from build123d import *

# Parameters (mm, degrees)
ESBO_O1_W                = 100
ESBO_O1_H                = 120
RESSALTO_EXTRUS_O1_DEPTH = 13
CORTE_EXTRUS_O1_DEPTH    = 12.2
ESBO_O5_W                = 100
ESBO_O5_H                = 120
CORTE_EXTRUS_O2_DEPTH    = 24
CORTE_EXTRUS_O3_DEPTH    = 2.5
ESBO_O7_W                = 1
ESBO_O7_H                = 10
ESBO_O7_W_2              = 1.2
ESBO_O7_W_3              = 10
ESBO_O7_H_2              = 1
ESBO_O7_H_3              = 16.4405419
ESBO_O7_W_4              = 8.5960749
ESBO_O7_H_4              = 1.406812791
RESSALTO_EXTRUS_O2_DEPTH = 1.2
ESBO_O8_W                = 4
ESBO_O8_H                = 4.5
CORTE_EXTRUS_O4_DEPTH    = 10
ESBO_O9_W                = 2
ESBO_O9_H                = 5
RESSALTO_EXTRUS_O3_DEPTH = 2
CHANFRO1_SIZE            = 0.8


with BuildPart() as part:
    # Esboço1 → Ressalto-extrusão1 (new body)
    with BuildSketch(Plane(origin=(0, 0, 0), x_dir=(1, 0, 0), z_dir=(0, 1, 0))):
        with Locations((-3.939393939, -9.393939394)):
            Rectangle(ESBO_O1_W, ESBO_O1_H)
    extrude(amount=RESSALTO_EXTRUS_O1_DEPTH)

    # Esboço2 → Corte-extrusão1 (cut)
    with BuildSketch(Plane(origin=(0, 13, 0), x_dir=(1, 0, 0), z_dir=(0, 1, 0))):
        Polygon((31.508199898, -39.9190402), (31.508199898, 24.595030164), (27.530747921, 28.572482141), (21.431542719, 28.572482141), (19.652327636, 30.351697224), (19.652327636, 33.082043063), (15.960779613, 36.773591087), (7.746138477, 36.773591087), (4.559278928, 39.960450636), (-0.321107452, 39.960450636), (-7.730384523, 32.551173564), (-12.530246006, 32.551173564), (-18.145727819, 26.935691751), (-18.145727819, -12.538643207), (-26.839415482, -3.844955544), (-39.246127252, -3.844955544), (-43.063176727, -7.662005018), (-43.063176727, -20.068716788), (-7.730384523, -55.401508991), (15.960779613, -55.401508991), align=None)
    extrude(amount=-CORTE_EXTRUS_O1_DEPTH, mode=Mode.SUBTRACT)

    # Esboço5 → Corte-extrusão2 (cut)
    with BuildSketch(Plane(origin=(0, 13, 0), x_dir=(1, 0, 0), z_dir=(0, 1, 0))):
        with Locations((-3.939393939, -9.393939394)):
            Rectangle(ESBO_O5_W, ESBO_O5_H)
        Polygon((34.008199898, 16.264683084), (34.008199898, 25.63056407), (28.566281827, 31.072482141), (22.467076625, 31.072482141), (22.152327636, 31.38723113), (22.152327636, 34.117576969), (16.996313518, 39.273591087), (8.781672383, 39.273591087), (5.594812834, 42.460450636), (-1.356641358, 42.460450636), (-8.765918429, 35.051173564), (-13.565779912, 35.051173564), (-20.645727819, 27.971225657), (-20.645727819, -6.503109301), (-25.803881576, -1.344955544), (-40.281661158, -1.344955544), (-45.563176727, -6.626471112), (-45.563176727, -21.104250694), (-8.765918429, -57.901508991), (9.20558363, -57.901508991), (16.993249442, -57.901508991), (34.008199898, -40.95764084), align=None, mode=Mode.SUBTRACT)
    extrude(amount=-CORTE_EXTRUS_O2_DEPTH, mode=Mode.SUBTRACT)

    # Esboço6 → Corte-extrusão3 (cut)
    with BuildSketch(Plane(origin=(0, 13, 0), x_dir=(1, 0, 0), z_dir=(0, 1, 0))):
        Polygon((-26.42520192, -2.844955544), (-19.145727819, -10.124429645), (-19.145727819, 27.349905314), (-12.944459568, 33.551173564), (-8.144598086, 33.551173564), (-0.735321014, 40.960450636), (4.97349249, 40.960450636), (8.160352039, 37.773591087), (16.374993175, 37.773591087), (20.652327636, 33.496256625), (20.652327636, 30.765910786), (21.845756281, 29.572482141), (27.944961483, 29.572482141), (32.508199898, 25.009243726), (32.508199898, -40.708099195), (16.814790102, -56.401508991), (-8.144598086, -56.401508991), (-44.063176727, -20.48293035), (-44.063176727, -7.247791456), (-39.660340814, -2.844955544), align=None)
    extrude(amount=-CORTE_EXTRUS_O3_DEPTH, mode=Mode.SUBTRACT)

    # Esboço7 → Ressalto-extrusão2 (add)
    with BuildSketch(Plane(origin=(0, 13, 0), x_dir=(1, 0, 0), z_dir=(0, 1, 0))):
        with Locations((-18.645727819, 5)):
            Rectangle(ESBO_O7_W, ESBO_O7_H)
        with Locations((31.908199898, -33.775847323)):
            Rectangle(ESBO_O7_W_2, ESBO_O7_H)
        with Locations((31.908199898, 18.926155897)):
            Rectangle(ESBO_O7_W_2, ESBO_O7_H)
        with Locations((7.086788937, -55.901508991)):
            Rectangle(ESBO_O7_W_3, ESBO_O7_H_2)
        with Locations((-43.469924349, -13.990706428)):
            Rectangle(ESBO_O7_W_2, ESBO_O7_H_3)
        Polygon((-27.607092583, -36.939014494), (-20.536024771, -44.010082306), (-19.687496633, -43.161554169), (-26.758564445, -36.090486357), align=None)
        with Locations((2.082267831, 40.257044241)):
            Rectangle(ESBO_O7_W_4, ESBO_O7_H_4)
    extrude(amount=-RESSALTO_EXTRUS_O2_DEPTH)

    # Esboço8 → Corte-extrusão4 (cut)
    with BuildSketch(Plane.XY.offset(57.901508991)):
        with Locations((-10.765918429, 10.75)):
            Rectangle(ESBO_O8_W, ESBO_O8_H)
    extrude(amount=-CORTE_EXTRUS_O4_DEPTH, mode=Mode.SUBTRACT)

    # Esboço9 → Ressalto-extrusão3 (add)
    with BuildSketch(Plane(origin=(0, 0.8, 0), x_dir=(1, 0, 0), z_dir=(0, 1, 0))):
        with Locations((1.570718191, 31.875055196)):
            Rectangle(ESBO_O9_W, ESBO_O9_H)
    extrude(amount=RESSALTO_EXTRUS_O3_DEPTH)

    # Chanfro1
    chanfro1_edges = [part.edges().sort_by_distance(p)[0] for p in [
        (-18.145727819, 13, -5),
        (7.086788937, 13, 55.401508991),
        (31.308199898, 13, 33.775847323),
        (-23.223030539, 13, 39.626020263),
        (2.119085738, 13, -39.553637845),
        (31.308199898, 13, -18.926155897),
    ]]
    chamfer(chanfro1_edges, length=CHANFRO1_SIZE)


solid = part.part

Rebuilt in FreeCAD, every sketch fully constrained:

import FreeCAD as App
import Part
import Sketcher
from FreeCAD import Vector
Q = App.Units.Quantity


def edges_at(feature, points):
    """Names of the edges that pass closest to the given points."""
    edges = feature.Shape.Edges
    near = lambda p: min(range(len(edges)), key=lambda i: edges[i].distToShape(Part.Vertex(*p))[0])
    return sorted({f"Edge{near(p) + 1}" for p in points})

doc = App.newDocument("Part")
body = doc.addObject("PartDesign::Body", "Body")

# Sketch on XZ plane
sketch1 = doc.addObject("Sketcher::SketchObject", "Sketch")
body.addObject(sketch1)
sketch1.AttachmentSupport = (doc.XZ_Plane, [""])
sketch1.MapMode = "FlatFace"
sketch1.addGeometry(Part.LineSegment(Vector(-54, -51, 0), Vector(-54, 69, 0)), False)
sketch1.addGeometry(Part.LineSegment(Vector(-54, 69, 0), Vector(46, 69, 0)), False)
sketch1.addGeometry(Part.LineSegment(Vector(46, 69, 0), Vector(46, -51, 0)), False)
sketch1.addGeometry(Part.LineSegment(Vector(46, -51, 0), Vector(-54, -51, 0)), False)
sketch1.addConstraint(Sketcher.Constraint("Coincident", 0, 2, 1, 1))
sketch1.addConstraint(Sketcher.Constraint("Coincident", 1, 2, 2, 1))
sketch1.addConstraint(Sketcher.Constraint("Coincident", 2, 2, 3, 1))
sketch1.addConstraint(Sketcher.Constraint("Coincident", 3, 2, 0, 1))
sketch1.addConstraint(Sketcher.Constraint("Vertical", 0))
sketch1.addConstraint(Sketcher.Constraint("Horizontal", 1))
sketch1.addConstraint(Sketcher.Constraint("Vertical", 2))
sketch1.addConstraint(Sketcher.Constraint("Horizontal", 3))
sketch1.addConstraint(Sketcher.Constraint("DistanceX", 1, 1, 1, 2, Q("100 mm")))
sketch1.addConstraint(Sketcher.Constraint("DistanceY", 0, 1, 0, 2, Q("120 mm")))
sketch1.addConstraint(Sketcher.Constraint("DistanceY", -1, 1, 0, 2, Q("69.393939 mm")))
sketch1.addConstraint(Sketcher.Constraint("DistanceX", 0, 2, -1, 1, Q("53.939394 mm")))
pad1 = doc.addObject("PartDesign::Pad", "Pad")
body.addObject(pad1)
pad1.Profile = sketch1
pad1.Length = 13
pad1.Reversed = True

# Sketch on XZ plane
sketch2 = doc.addObject("Sketcher::SketchObject", "Sketch001")
body.addObject(sketch2)
sketch2.AttachmentSupport = (doc.XZ_Plane, [""])
sketch2.MapMode = "FlatFace"
sketch2.AttachmentOffset = App.Placement(Vector(0, 0, -13), App.Rotation())
sketch2.addGeometry(Part.LineSegment(Vector(31.5, 39.9, 0), Vector(31.5, -24.6, 0)), False)
sketch2.addGeometry(Part.LineSegment(Vector(31.5, -24.6, 0), Vector(27.5, -28.6, 0)), False)
sketch2.addGeometry(Part.LineSegment(Vector(27.5, -28.6, 0), Vector(21.4, -28.6, 0)), False)
sketch2.addGeometry(Part.LineSegment(Vector(21.4, -28.6, 0), Vector(19.7, -30.4, 0)), False)
sketch2.addGeometry(Part.LineSegment(Vector(19.7, -30.4, 0), Vector(19.7, -33.1, 0)), False)
sketch2.addGeometry(Part.LineSegment(Vector(19.7, -33.1, 0), Vector(16, -36.8, 0)), False)
sketch2.addGeometry(Part.LineSegment(Vector(16, -36.8, 0), Vector(7.7, -36.8, 0)), False)
sketch2.addGeometry(Part.LineSegment(Vector(7.7, -36.8, 0), Vector(4.6, -40, 0)), False)
sketch2.addGeometry(Part.LineSegment(Vector(4.6, -40, 0), Vector(-0.3, -40, 0)), False)
sketch2.addGeometry(Part.LineSegment(Vector(-0.3, -40, 0), Vector(-7.7, -32.6, 0)), False)
sketch2.addGeometry(Part.LineSegment(Vector(-7.7, -32.6, 0), Vector(-12.5, -32.6, 0)), False)
sketch2.addGeometry(Part.LineSegment(Vector(-12.5, -32.6, 0), Vector(-18.1, -26.9, 0)), False)
sketch2.addGeometry(Part.LineSegment(Vector(-18.1, -26.9, 0), Vector(-18.1, 12.5, 0)), False)
sketch2.addGeometry(Part.LineSegment(Vector(-18.1, 12.5, 0), Vector(-26.8, 3.8, 0)), False)
sketch2.addGeometry(Part.LineSegment(Vector(-26.8, 3.8, 0), Vector(-39.2, 3.8, 0)), False)
sketch2.addGeometry(Part.LineSegment(Vector(-39.2, 3.8, 0), Vector(-43.1, 7.7, 0)), False)
sketch2.addGeometry(Part.LineSegment(Vector(-43.1, 7.7, 0), Vector(-43.1, 20.1, 0)), False)
sketch2.addGeometry(Part.LineSegment(Vector(-43.1, 20.1, 0), Vector(-7.7, 55.4, 0)), False)
sketch2.addGeometry(Part.LineSegment(Vector(-7.7, 55.4, 0), Vector(16, 55.4, 0)), False)
sketch2.addGeometry(Part.LineSegment(Vector(16, 55.4, 0), Vector(31.5, 39.9, 0)), False)
sketch2.addConstraint(Sketcher.Constraint("Coincident", 0, 2, 1, 1))
sketch2.addConstraint(Sketcher.Constraint("Coincident", 1, 2, 2, 1))
sketch2.addConstraint(Sketcher.Constraint("Coincident", 2, 2, 3, 1))
sketch2.addConstraint(Sketcher.Constraint("Coincident", 3, 2, 4, 1))
sketch2.addConstraint(Sketcher.Constraint("Coincident", 4, 2, 5, 1))
sketch2.addConstraint(Sketcher.Constraint("Coincident", 5, 2, 6, 1))
sketch2.addConstraint(Sketcher.Constraint("Coincident", 6, 2, 7, 1))
sketch2.addConstraint(Sketcher.Constraint("Coincident", 7, 2, 8, 1))
sketch2.addConstraint(Sketcher.Constraint("Coincident", 8, 2, 9, 1))
sketch2.addConstraint(Sketcher.Constraint("Coincident", 9, 2, 10, 1))
sketch2.addConstraint(Sketcher.Constraint("Coincident", 10, 2, 11, 1))
sketch2.addConstraint(Sketcher.Constraint("Coincident", 11, 2, 12, 1))
sketch2.addConstraint(Sketcher.Constraint("Coincident", 12, 2, 13, 1))
sketch2.addConstraint(Sketcher.Constraint("Coincident", 13, 2, 14, 1))
sketch2.addConstraint(Sketcher.Constraint("Coincident", 14, 2, 15, 1))
sketch2.addConstraint(Sketcher.Constraint("Coincident", 15, 2, 16, 1))
sketch2.addConstraint(Sketcher.Constraint("Coincident", 16, 2, 17, 1))
sketch2.addConstraint(Sketcher.Constraint("Coincident", 17, 2, 18, 1))
sketch2.addConstraint(Sketcher.Constraint("Coincident", 18, 2, 19, 1))
sketch2.addConstraint(Sketcher.Constraint("Coincident", 19, 2, 0, 1))
sketch2.addConstraint(Sketcher.Constraint("Vertical", 0))
sketch2.addConstraint(Sketcher.Constraint("Horizontal", 2))
sketch2.addConstraint(Sketcher.Constraint("Vertical", 4))
sketch2.addConstraint(Sketcher.Constraint("Horizontal", 6))
sketch2.addConstraint(Sketcher.Constraint("Horizontal", 8))
sketch2.addConstraint(Sketcher.Constraint("Horizontal", 10))
sketch2.addConstraint(Sketcher.Constraint("Vertical", 12))
sketch2.addConstraint(Sketcher.Constraint("Horizontal", 14))
sketch2.addConstraint(Sketcher.Constraint("Vertical", 16))
sketch2.addConstraint(Sketcher.Constraint("Horizontal", 18))
sketch2.addConstraint(Sketcher.Constraint("Parallel", 1, 3))
sketch2.addConstraint(Sketcher.Constraint("Parallel", 3, 5))
sketch2.addConstraint(Sketcher.Constraint("Parallel", 5, 7))
sketch2.addConstraint(Sketcher.Constraint("Perpendicular", 7, 9))
sketch2.addConstraint(Sketcher.Constraint("Parallel", 9, 11))
sketch2.addConstraint(Sketcher.Constraint("Perpendicular", 11, 13))
sketch2.addConstraint(Sketcher.Constraint("Perpendicular", 13, 15))
sketch2.addConstraint(Sketcher.Constraint("Perpendicular", 15, 17))
sketch2.addConstraint(Sketcher.Constraint("Vertical", 9, 2, 17, 2))
sketch2.addConstraint(Sketcher.Constraint("Vertical", 5, 2, 18, 2))
sketch2.addConstraint(Sketcher.Constraint("Equal", 14, 16))
sketch2.addConstraint(Sketcher.Constraint("Angle", 1, Q("-135 deg")))
sketch2.addConstraint(Sketcher.Constraint("Distance", 7, Q("4.5069 mm")))
sketch2.addConstraint(Sketcher.Constraint("Distance", 9, Q("10.4783 mm")))
sketch2.addConstraint(Sketcher.Constraint("DistanceX", 6, 2, 6, 1, Q("8.214641 mm")))
sketch2.addConstraint(Sketcher.Constraint("DistanceX", 10, 2, 10, 1, Q("4.799861 mm")))
sketch2.addConstraint(Sketcher.Constraint("DistanceX", 14, 2, 14, 1, Q("12.406712 mm")))
sketch2.addConstraint(Sketcher.Constraint("DistanceY", 0, 2, 0, 1, Q("64.51407 mm")))
sketch2.addConstraint(Sketcher.Constraint("DistanceX", -1, 1, 0, 2, Q("31.5082 mm")))
sketch2.addConstraint(Sketcher.Constraint("DistanceY", 6, 2, 11, 2, Q("9.837899 mm")))
sketch2.addConstraint(Sketcher.Constraint("DistanceX", 14, 2, 12, 2, Q("21.100399 mm")))
sketch2.addConstraint(Sketcher.Constraint("Distance", 3, Q("2.51619 mm")))
sketch2.addConstraint(Sketcher.Constraint("DistanceX", 2, 2, 2, 1, Q("6.099205 mm")))
sketch2.addConstraint(Sketcher.Constraint("DistanceX", 8, 2, 8, 1, Q("4.880386 mm")))
sketch2.addConstraint(Sketcher.Constraint("DistanceY", 4, 2, 4, 1, Q("2.730346 mm")))
sketch2.addConstraint(Sketcher.Constraint("DistanceY", 12, 1, 12, 2, Q("39.474335 mm")))
sketch2.addConstraint(Sketcher.Constraint("DistanceY", 0, 2, -1, 1, Q("24.59503 mm")))
sketch2.addConstraint(Sketcher.Constraint("DistanceX", -1, 1, 5, 2, Q("15.96078 mm")))
sketch2.addConstraint(Sketcher.Constraint("DistanceY", -1, 1, 17, 2, Q("55.401509 mm")))
sketch2.addConstraint(Sketcher.Constraint("DistanceX", 1, 2, 0, 2, Q("3.977452 mm")))
pocket1 = doc.addObject("PartDesign::Pocket", "Pocket")
body.addObject(pocket1)
pocket1.Profile = sketch2
pocket1.Length = 12.2
pocket1.Reversed = True

# Sketch on XZ plane
sketch3 = doc.addObject("Sketcher::SketchObject", "Sketch002")
body.addObject(sketch3)
sketch3.AttachmentSupport = (doc.XZ_Plane, [""])
sketch3.MapMode = "FlatFace"
sketch3.AttachmentOffset = App.Placement(Vector(0, 0, -13), App.Rotation())
sketch3.addGeometry(Part.LineSegment(Vector(-53.94, -50.61, 0), Vector(-53.94, 69.39, 0)), False)
sketch3.addGeometry(Part.LineSegment(Vector(-53.94, 69.39, 0), Vector(46.06, 69.39, 0)), False)
sketch3.addGeometry(Part.LineSegment(Vector(46.06, 69.39, 0), Vector(46.06, -50.61, 0)), False)
sketch3.addGeometry(Part.LineSegment(Vector(46.06, -50.61, 0), Vector(-53.94, -50.61, 0)), False)
sketch3.addGeometry(Part.LineSegment(Vector(34.01, -25.63, 0), Vector(34.01, 40.96, 0)), False)
sketch3.addGeometry(Part.LineSegment(Vector(34.01, 40.96, 0), Vector(16.99, 57.9, 0)), False)
sketch3.addGeometry(Part.LineSegment(Vector(16.99, 57.9, 0), Vector(-8.77, 57.9, 0)), False)
sketch3.addGeometry(Part.LineSegment(Vector(-8.77, 57.9, 0), Vector(-45.56, 21.1, 0)), False)
sketch3.addGeometry(Part.LineSegment(Vector(-45.56, 21.1, 0), Vector(-45.56, 6.63, 0)), False)
sketch3.addGeometry(Part.LineSegment(Vector(-45.56, 6.63, 0), Vector(-40.28, 1.34, 0)), False)
sketch3.addGeometry(Part.LineSegment(Vector(-40.28, 1.34, 0), Vector(-25.8, 1.34, 0)), False)
sketch3.addGeometry(Part.LineSegment(Vector(-25.8, 1.34, 0), Vector(-20.65, 6.5, 0)), False)
sketch3.addGeometry(Part.LineSegment(Vector(-20.65, 6.5, 0), Vector(-20.65, -27.97, 0)), False)
sketch3.addGeometry(Part.LineSegment(Vector(-20.65, -27.97, 0), Vector(-13.57, -35.05, 0)), False)
sketch3.addGeometry(Part.LineSegment(Vector(-13.57, -35.05, 0), Vector(-8.77, -35.05, 0)), False)
sketch3.addGeometry(Part.LineSegment(Vector(-8.77, -35.05, 0), Vector(-1.36, -42.46, 0)), False)
sketch3.addGeometry(Part.LineSegment(Vector(-1.36, -42.46, 0), Vector(5.59, -42.46, 0)), False)
sketch3.addGeometry(Part.LineSegment(Vector(5.59, -42.46, 0), Vector(8.78, -39.27, 0)), False)
sketch3.addGeometry(Part.LineSegment(Vector(8.78, -39.27, 0), Vector(17, -39.27, 0)), False)
sketch3.addGeometry(Part.LineSegment(Vector(17, -39.27, 0), Vector(22.15, -34.12, 0)), False)
sketch3.addGeometry(Part.LineSegment(Vector(22.15, -34.12, 0), Vector(22.15, -31.39, 0)), False)
sketch3.addGeometry(Part.LineSegment(Vector(22.15, -31.39, 0), Vector(22.47, -31.07, 0)), False)
sketch3.addGeometry(Part.LineSegment(Vector(22.47, -31.07, 0), Vector(28.57, -31.07, 0)), False)
sketch3.addGeometry(Part.LineSegment(Vector(28.57, -31.07, 0), Vector(34.01, -25.63, 0)), False)
sketch3.addConstraint(Sketcher.Constraint("Coincident", 0, 2, 1, 1))
sketch3.addConstraint(Sketcher.Constraint("Coincident", 1, 2, 2, 1))
sketch3.addConstraint(Sketcher.Constraint("Coincident", 2, 2, 3, 1))
sketch3.addConstraint(Sketcher.Constraint("Coincident", 3, 2, 0, 1))
sketch3.addConstraint(Sketcher.Constraint("Coincident", 4, 2, 5, 1))
sketch3.addConstraint(Sketcher.Constraint("Coincident", 5, 2, 6, 1))
sketch3.addConstraint(Sketcher.Constraint("Coincident", 6, 2, 7, 1))
sketch3.addConstraint(Sketcher.Constraint("Coincident", 7, 2, 8, 1))
sketch3.addConstraint(Sketcher.Constraint("Coincident", 8, 2, 9, 1))
sketch3.addConstraint(Sketcher.Constraint("Coincident", 9, 2, 10, 1))
sketch3.addConstraint(Sketcher.Constraint("Coincident", 10, 2, 11, 1))
sketch3.addConstraint(Sketcher.Constraint("Coincident", 11, 2, 12, 1))
sketch3.addConstraint(Sketcher.Constraint("Coincident", 12, 2, 13, 1))
sketch3.addConstraint(Sketcher.Constraint("Coincident", 13, 2, 14, 1))
sketch3.addConstraint(Sketcher.Constraint("Coincident", 14, 2, 15, 1))
sketch3.addConstraint(Sketcher.Constraint("Coincident", 15, 2, 16, 1))
sketch3.addConstraint(Sketcher.Constraint("Coincident", 16, 2, 17, 1))
sketch3.addConstraint(Sketcher.Constraint("Coincident", 17, 2, 18, 1))
sketch3.addConstraint(Sketcher.Constraint("Coincident", 18, 2, 19, 1))
sketch3.addConstraint(Sketcher.Constraint("Coincident", 19, 2, 20, 1))
sketch3.addConstraint(Sketcher.Constraint("Coincident", 20, 2, 21, 1))
sketch3.addConstraint(Sketcher.Constraint("Coincident", 21, 2, 22, 1))
sketch3.addConstraint(Sketcher.Constraint("Coincident", 22, 2, 23, 1))
sketch3.addConstraint(Sketcher.Constraint("Coincident", 23, 2, 4, 1))
sketch3.addConstraint(Sketcher.Constraint("Vertical", 0))
sketch3.addConstraint(Sketcher.Constraint("Horizontal", 1))
sketch3.addConstraint(Sketcher.Constraint("Vertical", 2))
sketch3.addConstraint(Sketcher.Constraint("Horizontal", 3))
sketch3.addConstraint(Sketcher.Constraint("Vertical", 4))
sketch3.addConstraint(Sketcher.Constraint("Horizontal", 6))
sketch3.addConstraint(Sketcher.Constraint("Vertical", 8))
sketch3.addConstraint(Sketcher.Constraint("Horizontal", 10))
sketch3.addConstraint(Sketcher.Constraint("Vertical", 12))
sketch3.addConstraint(Sketcher.Constraint("Horizontal", 14))
sketch3.addConstraint(Sketcher.Constraint("Horizontal", 16))
sketch3.addConstraint(Sketcher.Constraint("Horizontal", 18))
sketch3.addConstraint(Sketcher.Constraint("Vertical", 20))
sketch3.addConstraint(Sketcher.Constraint("Horizontal", 22))
sketch3.addConstraint(Sketcher.Constraint("Perpendicular", 7, 9))
sketch3.addConstraint(Sketcher.Constraint("Perpendicular", 9, 11))
sketch3.addConstraint(Sketcher.Constraint("Perpendicular", 11, 13))
sketch3.addConstraint(Sketcher.Constraint("Parallel", 13, 15))
sketch3.addConstraint(Sketcher.Constraint("Perpendicular", 15, 17))
sketch3.addConstraint(Sketcher.Constraint("Parallel", 17, 19))
sketch3.addConstraint(Sketcher.Constraint("Parallel", 19, 21))
sketch3.addConstraint(Sketcher.Constraint("Parallel", 21, 23))
sketch3.addConstraint(Sketcher.Constraint("Vertical", 6, 2, 14, 2))
sketch3.addConstraint(Sketcher.Constraint("Equal", 10, 8))
sketch3.addConstraint(Sketcher.Constraint("DistanceX", 1, 1, 1, 2, Q("100 mm")))
sketch3.addConstraint(Sketcher.Constraint("DistanceY", 0, 1, 0, 2, Q("120 mm")))
sketch3.addConstraint(Sketcher.Constraint("Angle", 7, Q("-135 deg")))
sketch3.addConstraint(Sketcher.Constraint("Distance", 15, Q("10.4783 mm")))
sketch3.addConstraint(Sketcher.Constraint("Distance", 17, Q("4.5069 mm")))
sketch3.addConstraint(Sketcher.Constraint("DistanceX", 10, 1, 10, 2, Q("14.47778 mm")))
sketch3.addConstraint(Sketcher.Constraint("DistanceX", 14, 1, 14, 2, Q("4.799861 mm")))
sketch3.addConstraint(Sketcher.Constraint("DistanceX", 18, 1, 18, 2, Q("8.214641 mm")))
sketch3.addConstraint(Sketcher.Constraint("DistanceX", -1, 1, 4, 2, Q("34.0082 mm")))
sketch3.addConstraint(Sketcher.Constraint("DistanceY", 4, 2, 1, 2, Q("28.436299 mm")))
sketch3.addConstraint(Sketcher.Constraint("DistanceY", 11, 2, 6, 2, Q("51.3984 mm")))
sketch3.addConstraint(Sketcher.Constraint("DistanceX", 10, 2, 13, 2, Q("12.238102 mm")))
sketch3.addConstraint(Sketcher.Constraint("DistanceX", 12, 2, 17, 2, Q("29.4274 mm")))
sketch3.addConstraint(Sketcher.Constraint("Distance", 7, Q("52.039182 mm")))
sketch3.addConstraint(Sketcher.Constraint("DistanceX", 6, 2, 6, 1, Q("25.759168 mm")))
sketch3.addConstraint(Sketcher.Constraint("DistanceX", 22, 1, 22, 2, Q("6.099205 mm")))
sketch3.addConstraint(Sketcher.Constraint("DistanceY", 4, 1, 4, 2, Q("66.588205 mm")))
sketch3.addConstraint(Sketcher.Constraint("DistanceY", 12, 2, 12, 1, Q("34.474335 mm")))
sketch3.addConstraint(Sketcher.Constraint("DistanceY", 20, 1, 20, 2, Q("2.730346 mm")))
sketch3.addConstraint(Sketcher.Constraint("DistanceY", -1, 1, 0, 2, Q("69.393939 mm")))
sketch3.addConstraint(Sketcher.Constraint("DistanceX", -1, 1, 5, 2, Q("16.993249 mm")))
sketch3.addConstraint(Sketcher.Constraint("DistanceY", 20, 2, -1, 1, Q("31.387231 mm")))
sketch3.addConstraint(Sketcher.Constraint("DistanceX", -1, 1, 22, 2, Q("28.566282 mm")))
sketch3.addConstraint(Sketcher.Constraint("DistanceX", 19, 2, 2, 2, Q("23.908278 mm")))
pocket2 = doc.addObject("PartDesign::Pocket", "Pocket001")
body.addObject(pocket2)
pocket2.Profile = sketch3
pocket2.Length = 24
pocket2.Reversed = True

# Sketch on XZ plane
sketch4 = doc.addObject("Sketcher::SketchObject", "Sketch003")
body.addObject(sketch4)
sketch4.AttachmentSupport = (doc.XZ_Plane, [""])
sketch4.MapMode = "FlatFace"
sketch4.AttachmentOffset = App.Placement(Vector(0, 0, -13), App.Rotation())
sketch4.addGeometry(Part.LineSegment(Vector(-19.1, 10.1, 0), Vector(-26.4, 2.8, 0)), False)
sketch4.addGeometry(Part.LineSegment(Vector(-26.4, 2.8, 0), Vector(-39.7, 2.8, 0)), False)
sketch4.addGeometry(Part.LineSegment(Vector(-39.7, 2.8, 0), Vector(-44.1, 7.2, 0)), False)
sketch4.addGeometry(Part.LineSegment(Vector(-44.1, 7.2, 0), Vector(-44.1, 20.5, 0)), False)
sketch4.addGeometry(Part.LineSegment(Vector(-44.1, 20.5, 0), Vector(-8.1, 56.4, 0)), False)
sketch4.addGeometry(Part.LineSegment(Vector(-8.1, 56.4, 0), Vector(16.8, 56.4, 0)), False)
sketch4.addGeometry(Part.LineSegment(Vector(16.8, 56.4, 0), Vector(32.5, 40.7, 0)), False)
sketch4.addGeometry(Part.LineSegment(Vector(32.5, 40.7, 0), Vector(32.5, -25, 0)), False)
sketch4.addGeometry(Part.LineSegment(Vector(32.5, -25, 0), Vector(27.9, -29.6, 0)), False)
sketch4.addGeometry(Part.LineSegment(Vector(27.9, -29.6, 0), Vector(21.8, -29.6, 0)), False)
sketch4.addGeometry(Part.LineSegment(Vector(21.8, -29.6, 0), Vector(20.7, -30.8, 0)), False)
sketch4.addGeometry(Part.LineSegment(Vector(20.7, -30.8, 0), Vector(20.7, -33.5, 0)), False)
sketch4.addGeometry(Part.LineSegment(Vector(20.7, -33.5, 0), Vector(16.4, -37.8, 0)), False)
sketch4.addGeometry(Part.LineSegment(Vector(16.4, -37.8, 0), Vector(8.2, -37.8, 0)), False)
sketch4.addGeometry(Part.LineSegment(Vector(8.2, -37.8, 0), Vector(5, -41, 0)), False)
sketch4.addGeometry(Part.LineSegment(Vector(5, -41, 0), Vector(-0.7, -41, 0)), False)
sketch4.addGeometry(Part.LineSegment(Vector(-0.7, -41, 0), Vector(-8.1, -33.6, 0)), False)
sketch4.addGeometry(Part.LineSegment(Vector(-8.1, -33.6, 0), Vector(-12.9, -33.6, 0)), False)
sketch4.addGeometry(Part.LineSegment(Vector(-12.9, -33.6, 0), Vector(-19.1, -27.3, 0)), False)
sketch4.addGeometry(Part.LineSegment(Vector(-19.1, -27.3, 0), Vector(-19.1, 10.1, 0)), False)
sketch4.addConstraint(Sketcher.Constraint("Coincident", 0, 2, 1, 1))
sketch4.addConstraint(Sketcher.Constraint("Coincident", 1, 2, 2, 1))
sketch4.addConstraint(Sketcher.Constraint("Coincident", 2, 2, 3, 1))
sketch4.addConstraint(Sketcher.Constraint("Coincident", 3, 2, 4, 1))
sketch4.addConstraint(Sketcher.Constraint("Coincident", 4, 2, 5, 1))
sketch4.addConstraint(Sketcher.Constraint("Coincident", 5, 2, 6, 1))
sketch4.addConstraint(Sketcher.Constraint("Coincident", 6, 2, 7, 1))
sketch4.addConstraint(Sketcher.Constraint("Coincident", 7, 2, 8, 1))
sketch4.addConstraint(Sketcher.Constraint("Coincident", 8, 2, 9, 1))
sketch4.addConstraint(Sketcher.Constraint("Coincident", 9, 2, 10, 1))
sketch4.addConstraint(Sketcher.Constraint("Coincident", 10, 2, 11, 1))
sketch4.addConstraint(Sketcher.Constraint("Coincident", 11, 2, 12, 1))
sketch4.addConstraint(Sketcher.Constraint("Coincident", 12, 2, 13, 1))
sketch4.addConstraint(Sketcher.Constraint("Coincident", 13, 2, 14, 1))
sketch4.addConstraint(Sketcher.Constraint("Coincident", 14, 2, 15, 1))
sketch4.addConstraint(Sketcher.Constraint("Coincident", 15, 2, 16, 1))
sketch4.addConstraint(Sketcher.Constraint("Coincident", 16, 2, 17, 1))
sketch4.addConstraint(Sketcher.Constraint("Coincident", 17, 2, 18, 1))
sketch4.addConstraint(Sketcher.Constraint("Coincident", 18, 2, 19, 1))
sketch4.addConstraint(Sketcher.Constraint("Coincident", 19, 2, 0, 1))
sketch4.addConstraint(Sketcher.Constraint("Horizontal", 1))
sketch4.addConstraint(Sketcher.Constraint("Vertical", 3))
sketch4.addConstraint(Sketcher.Constraint("Horizontal", 5))
sketch4.addConstraint(Sketcher.Constraint("Vertical", 7))
sketch4.addConstraint(Sketcher.Constraint("Horizontal", 9))
sketch4.addConstraint(Sketcher.Constraint("Vertical", 11))
sketch4.addConstraint(Sketcher.Constraint("Horizontal", 13))
sketch4.addConstraint(Sketcher.Constraint("Horizontal", 15))
sketch4.addConstraint(Sketcher.Constraint("Horizontal", 17))
sketch4.addConstraint(Sketcher.Constraint("Vertical", 19))
sketch4.addConstraint(Sketcher.Constraint("Perpendicular", 0, 2))
sketch4.addConstraint(Sketcher.Constraint("Perpendicular", 2, 4))
sketch4.addConstraint(Sketcher.Constraint("Perpendicular", 4, 6))
sketch4.addConstraint(Sketcher.Constraint("Perpendicular", 6, 8))
sketch4.addConstraint(Sketcher.Constraint("Parallel", 8, 10))
sketch4.addConstraint(Sketcher.Constraint("Parallel", 10, 12))
sketch4.addConstraint(Sketcher.Constraint("Parallel", 12, 14))
sketch4.addConstraint(Sketcher.Constraint("Perpendicular", 14, 16))
sketch4.addConstraint(Sketcher.Constraint("Parallel", 16, 18))
sketch4.addConstraint(Sketcher.Constraint("Vertical", 4, 2, 16, 2))
sketch4.addConstraint(Sketcher.Constraint("Equal", 1, 3))
sketch4.addConstraint(Sketcher.Constraint("Angle", 0, Q("-135 deg")))
sketch4.addConstraint(Sketcher.Constraint("Distance", 14, Q("4.5069 mm")))
sketch4.addConstraint(Sketcher.Constraint("Distance", 16, Q("10.4783 mm")))
sketch4.addConstraint(Sketcher.Constraint("DistanceX", 1, 2, 1, 1, Q("13.235139 mm")))
sketch4.addConstraint(Sketcher.Constraint("DistanceX", 5, 1, 5, 2, Q("24.959388 mm")))
sketch4.addConstraint(Sketcher.Constraint("DistanceX", 13, 2, 13, 1, Q("8.214641 mm")))
sketch4.addConstraint(Sketcher.Constraint("DistanceX", 17, 2, 17, 1, Q("4.799861 mm")))
sketch4.addConstraint(Sketcher.Constraint("DistanceX", 0, 2, -1, 1, Q("26.425202 mm")))
sketch4.addConstraint(Sketcher.Constraint("DistanceX", 4, 2, -1, 1, Q("8.144598 mm")))
sketch4.addConstraint(Sketcher.Constraint("DistanceX", -1, 1, 6, 2, Q("32.5082 mm")))
sketch4.addConstraint(Sketcher.Constraint("DistanceY", -1, 1, 6, 2, Q("40.708099 mm")))
sketch4.addConstraint(Sketcher.Constraint("DistanceY", 7, 2, 0, 2, Q("27.854199 mm")))
sketch4.addConstraint(Sketcher.Constraint("DistanceY", 19, 2, 3, 2, Q("10.358501 mm")))
sketch4.addConstraint(Sketcher.Constraint("Distance", 0, Q("10.294731 mm")))
sketch4.addConstraint(Sketcher.Constraint("DistanceX", 9, 2, 9, 1, Q("6.099205 mm")))
sketch4.addConstraint(Sketcher.Constraint("DistanceX", 15, 2, 15, 1, Q("5.708814 mm")))
sketch4.addConstraint(Sketcher.Constraint("DistanceY", 11, 2, 11, 1, Q("2.730346 mm")))
sketch4.addConstraint(Sketcher.Constraint("DistanceX", -1, 1, 8, 2, Q("27.944961 mm")))
sketch4.addConstraint(Sketcher.Constraint("DistanceY", 10, 2, -1, 1, Q("30.765911 mm")))
pocket3 = doc.addObject("PartDesign::Pocket", "Pocket002")
body.addObject(pocket3)
pocket3.Profile = sketch4
pocket3.Length = 2.5
pocket3.Reversed = True

# Sketch on XZ plane
sketch5 = doc.addObject("Sketcher::SketchObject", "Sketch004")
body.addObject(sketch5)
sketch5.AttachmentSupport = (doc.XZ_Plane, [""])
sketch5.MapMode = "FlatFace"
sketch5.AttachmentOffset = App.Placement(Vector(0, 0, -13), App.Rotation())
sketch5.addGeometry(Part.LineSegment(Vector(-19.1, -10, 0), Vector(-19.1, 0, 0)), False)
sketch5.addGeometry(Part.LineSegment(Vector(-19.1, 0, 0), Vector(-18.1, 0, 0)), False)
sketch5.addGeometry(Part.LineSegment(Vector(-18.1, 0, 0), Vector(-18.1, -10, 0)), False)
sketch5.addGeometry(Part.LineSegment(Vector(-18.1, -10, 0), Vector(-19.1, -10, 0)), False)
sketch5.addGeometry(Part.LineSegment(Vector(31.3, 28.8, 0), Vector(31.3, 38.8, 0)), False)
sketch5.addGeometry(Part.LineSegment(Vector(31.3, 38.8, 0), Vector(32.5, 38.8, 0)), False)
sketch5.addGeometry(Part.LineSegment(Vector(32.5, 38.8, 0), Vector(32.5, 28.8, 0)), False)
sketch5.addGeometry(Part.LineSegment(Vector(32.5, 28.8, 0), Vector(31.3, 28.8, 0)), False)
sketch5.addGeometry(Part.LineSegment(Vector(31.3, -23.9, 0), Vector(31.3, -13.9, 0)), False)
sketch5.addGeometry(Part.LineSegment(Vector(31.3, -13.9, 0), Vector(32.5, -13.9, 0)), False)
sketch5.addGeometry(Part.LineSegment(Vector(32.5, -13.9, 0), Vector(32.5, -23.9, 0)), False)
sketch5.addGeometry(Part.LineSegment(Vector(32.5, -23.9, 0), Vector(31.3, -23.9, 0)), False)
sketch5.addGeometry(Part.LineSegment(Vector(2.1, 55.4, 0), Vector(2.1, 56.4, 0)), False)
sketch5.addGeometry(Part.LineSegment(Vector(2.1, 56.4, 0), Vector(12.1, 56.4, 0)), False)
sketch5.addGeometry(Part.LineSegment(Vector(12.1, 56.4, 0), Vector(12.1, 55.4, 0)), False)
sketch5.addGeometry(Part.LineSegment(Vector(12.1, 55.4, 0), Vector(2.1, 55.4, 0)), False)
sketch5.addGeometry(Part.LineSegment(Vector(-44.1, 5.8, 0), Vector(-44.1, 22.2, 0)), False)
sketch5.addGeometry(Part.LineSegment(Vector(-44.1, 22.2, 0), Vector(-42.9, 22.2, 0)), False)
sketch5.addGeometry(Part.LineSegment(Vector(-42.9, 22.2, 0), Vector(-42.9, 5.8, 0)), False)
sketch5.addGeometry(Part.LineSegment(Vector(-42.9, 5.8, 0), Vector(-44.1, 5.8, 0)), False)
sketch5.addGeometry(Part.LineSegment(Vector(-27.6, 36.9, 0), Vector(-20.5, 44, 0)), False)
sketch5.addGeometry(Part.LineSegment(Vector(-20.5, 44, 0), Vector(-19.7, 43.2, 0)), False)
sketch5.addGeometry(Part.LineSegment(Vector(-19.7, 43.2, 0), Vector(-26.8, 36.1, 0)), False)
sketch5.addGeometry(Part.LineSegment(Vector(-26.8, 36.1, 0), Vector(-27.6, 36.9, 0)), False)
sketch5.addGeometry(Part.LineSegment(Vector(-2.2, -41, 0), Vector(-2.2, -39.6, 0)), False)
sketch5.addGeometry(Part.LineSegment(Vector(-2.2, -39.6, 0), Vector(6.4, -39.6, 0)), False)
sketch5.addGeometry(Part.LineSegment(Vector(6.4, -39.6, 0), Vector(6.4, -41, 0)), False)
sketch5.addGeometry(Part.LineSegment(Vector(6.4, -41, 0), Vector(-2.2, -41, 0)), False)
sketch5.addConstraint(Sketcher.Constraint("Coincident", 0, 2, 1, 1))
sketch5.addConstraint(Sketcher.Constraint("Coincident", 1, 2, 2, 1))
sketch5.addConstraint(Sketcher.Constraint("Coincident", 2, 2, 3, 1))
sketch5.addConstraint(Sketcher.Constraint("Coincident", 3, 2, 0, 1))
sketch5.addConstraint(Sketcher.Constraint("Coincident", 4, 2, 5, 1))
sketch5.addConstraint(Sketcher.Constraint("Coincident", 5, 2, 6, 1))
sketch5.addConstraint(Sketcher.Constraint("Coincident", 6, 2, 7, 1))
sketch5.addConstraint(Sketcher.Constraint("Coincident", 7, 2, 4, 1))
sketch5.addConstraint(Sketcher.Constraint("Coincident", 8, 2, 9, 1))
sketch5.addConstraint(Sketcher.Constraint("Coincident", 9, 2, 10, 1))
sketch5.addConstraint(Sketcher.Constraint("Coincident", 10, 2, 11, 1))
sketch5.addConstraint(Sketcher.Constraint("Coincident", 11, 2, 8, 1))
sketch5.addConstraint(Sketcher.Constraint("Coincident", 12, 2, 13, 1))
sketch5.addConstraint(Sketcher.Constraint("Coincident", 13, 2, 14, 1))
sketch5.addConstraint(Sketcher.Constraint("Coincident", 14, 2, 15, 1))
sketch5.addConstraint(Sketcher.Constraint("Coincident", 15, 2, 12, 1))
sketch5.addConstraint(Sketcher.Constraint("Coincident", 16, 2, 17, 1))
sketch5.addConstraint(Sketcher.Constraint("Coincident", 17, 2, 18, 1))
sketch5.addConstraint(Sketcher.Constraint("Coincident", 18, 2, 19, 1))
sketch5.addConstraint(Sketcher.Constraint("Coincident", 19, 2, 16, 1))
sketch5.addConstraint(Sketcher.Constraint("Coincident", 20, 2, 21, 1))
sketch5.addConstraint(Sketcher.Constraint("Coincident", 21, 2, 22, 1))
sketch5.addConstraint(Sketcher.Constraint("Coincident", 22, 2, 23, 1))
sketch5.addConstraint(Sketcher.Constraint("Coincident", 23, 2, 20, 1))
sketch5.addConstraint(Sketcher.Constraint("Coincident", 24, 2, 25, 1))
sketch5.addConstraint(Sketcher.Constraint("Coincident", 25, 2, 26, 1))
sketch5.addConstraint(Sketcher.Constraint("Coincident", 26, 2, 27, 1))
sketch5.addConstraint(Sketcher.Constraint("Coincident", 27, 2, 24, 1))
sketch5.addConstraint(Sketcher.Constraint("Vertical", 0))
sketch5.addConstraint(Sketcher.Constraint("Horizontal", 1))
sketch5.addConstraint(Sketcher.Constraint("Vertical", 2))
sketch5.addConstraint(Sketcher.Constraint("Horizontal", 3))
sketch5.addConstraint(Sketcher.Constraint("Vertical", 4))
sketch5.addConstraint(Sketcher.Constraint("Horizontal", 5))
sketch5.addConstraint(Sketcher.Constraint("Vertical", 6))
sketch5.addConstraint(Sketcher.Constraint("Horizontal", 7))
sketch5.addConstraint(Sketcher.Constraint("Vertical", 8))
sketch5.addConstraint(Sketcher.Constraint("Horizontal", 9))
sketch5.addConstraint(Sketcher.Constraint("Vertical", 10))
sketch5.addConstraint(Sketcher.Constraint("Horizontal", 11))
sketch5.addConstraint(Sketcher.Constraint("Vertical", 12))
sketch5.addConstraint(Sketcher.Constraint("Horizontal", 13))
sketch5.addConstraint(Sketcher.Constraint("Vertical", 14))
sketch5.addConstraint(Sketcher.Constraint("Horizontal", 15))
sketch5.addConstraint(Sketcher.Constraint("Vertical", 16))
sketch5.addConstraint(Sketcher.Constraint("Horizontal", 17))
sketch5.addConstraint(Sketcher.Constraint("Vertical", 18))
sketch5.addConstraint(Sketcher.Constraint("Horizontal", 19))
sketch5.addConstraint(Sketcher.Constraint("Vertical", 24))
sketch5.addConstraint(Sketcher.Constraint("Horizontal", 25))
sketch5.addConstraint(Sketcher.Constraint("Vertical", 26))
sketch5.addConstraint(Sketcher.Constraint("Horizontal", 27))
sketch5.addConstraint(Sketcher.Constraint("PointOnObject", 0, 2, -1))
sketch5.addConstraint(Sketcher.Constraint("Perpendicular", 20, 21))
sketch5.addConstraint(Sketcher.Constraint("Perpendicular", 21, 22))
sketch5.addConstraint(Sketcher.Constraint("Perpendicular", 22, 23))
sketch5.addConstraint(Sketcher.Constraint("Vertical", 7, 2, 8, 2))
sketch5.addConstraint(Sketcher.Constraint("Vertical", 6, 2, 9, 2))
sketch5.addConstraint(Sketcher.Constraint("Equal", 11, 17))
sketch5.addConstraint(Sketcher.Constraint("Equal", 15, 0))
sketch5.addConstraint(Sketcher.Constraint("Equal", 2, 4))
sketch5.addConstraint(Sketcher.Constraint("Equal", 6, 8))
sketch5.addConstraint(Sketcher.Constraint("Equal", 3, 12))
sketch5.addConstraint(Sketcher.Constraint("DistanceX", 1, 1, 1, 2, Q("1 mm")))
sketch5.addConstraint(Sketcher.Constraint("DistanceX", 13, 1, 13, 2, Q("10 mm")))
sketch5.addConstraint(Sketcher.Constraint("Angle", 20, Q("45 deg")))
sketch5.addConstraint(Sketcher.Constraint("Distance", 20, Q("10 mm")))
sketch5.addConstraint(Sketcher.Constraint("DistanceX", 5, 1, 5, 2, Q("1.2 mm")))
sketch5.addConstraint(Sketcher.Constraint("Distance", 21, Q("1.2 mm")))
sketch5.addConstraint(Sketcher.Constraint("DistanceY", 16, 1, 16, 2, Q("16.440542 mm")))
sketch5.addConstraint(Sketcher.Constraint("DistanceX", -1, 1, 4, 2, Q("31.3082 mm")))
sketch5.addConstraint(Sketcher.Constraint("DistanceX", 17, 2, 20, 2, Q("22.3339 mm")))
sketch5.addConstraint(Sketcher.Constraint("DistanceX", 25, 1, 25, 2, Q("8.596075 mm")))
sketch5.addConstraint(Sketcher.Constraint("DistanceY", 24, 1, 24, 2, Q("1.406813 mm")))
sketch5.addConstraint(Sketcher.Constraint("DistanceX", -1, 1, 12, 2, Q("2.086789 mm")))
sketch5.addConstraint(Sketcher.Constraint("DistanceY", -1, 1, 12, 2, Q("56.401509 mm")))
sketch5.addConstraint(Sketcher.Constraint("DistanceX", 24, 2, -1, 1, Q("2.21577 mm")))
sketch5.addConstraint(Sketcher.Constraint("DistanceY", 26, 2, -1, 1, Q("40.960451 mm")))
sketch5.addConstraint(Sketcher.Constraint("DistanceY", 4, 2, 12, 2, Q("17.625662 mm")))
sketch5.addConstraint(Sketcher.Constraint("DistanceY", 16, 2, 15, 2, Q("33.190532 mm")))
sketch5.addConstraint(Sketcher.Constraint("DistanceY", 17, 2, 22, 2, Q("13.879509 mm")))
sketch5.addConstraint(Sketcher.Constraint("DistanceX", 2, 2, 24, 2, Q("15.929958 mm")))
sketch5.addConstraint(Sketcher.Constraint("DistanceY", 24, 2, 11, 2, Q("15.627482 mm")))
sketch5.addConstraint(Sketcher.Constraint("DistanceX", 16, 2, -1, 1, Q("44.069924 mm")))
pad2 = doc.addObject("PartDesign::Pad", "Pad001")
body.addObject(pad2)
pad2.Profile = sketch5
pad2.Length = 1.2

# Sketch on XY plane
sketch6 = doc.addObject("Sketcher::SketchObject", "Sketch005")
body.addObject(sketch6)
sketch6.AttachmentSupport = (doc.XY_Plane, [""])
sketch6.MapMode = "FlatFace"
sketch6.AttachmentOffset = App.Placement(Vector(0, 0, 57.901509), App.Rotation())
sketch6.addGeometry(Part.LineSegment(Vector(-12.8, 13, 0), Vector(-12.8, 8.5, 0)), False)
sketch6.addGeometry(Part.LineSegment(Vector(-12.8, 8.5, 0), Vector(-8.8, 8.5, 0)), False)
sketch6.addGeometry(Part.LineSegment(Vector(-8.8, 8.5, 0), Vector(-8.8, 13, 0)), False)
sketch6.addGeometry(Part.LineSegment(Vector(-8.8, 13, 0), Vector(-12.8, 13, 0)), False)
sketch6.addConstraint(Sketcher.Constraint("Coincident", 0, 2, 1, 1))
sketch6.addConstraint(Sketcher.Constraint("Coincident", 1, 2, 2, 1))
sketch6.addConstraint(Sketcher.Constraint("Coincident", 2, 2, 3, 1))
sketch6.addConstraint(Sketcher.Constraint("Coincident", 3, 2, 0, 1))
sketch6.addConstraint(Sketcher.Constraint("Vertical", 0))
sketch6.addConstraint(Sketcher.Constraint("Horizontal", 1))
sketch6.addConstraint(Sketcher.Constraint("Vertical", 2))
sketch6.addConstraint(Sketcher.Constraint("Horizontal", 3))
sketch6.addConstraint(Sketcher.Constraint("DistanceX", 1, 1, 1, 2, Q("4 mm")))
sketch6.addConstraint(Sketcher.Constraint("DistanceY", 0, 2, 0, 1, Q("4.5 mm")))
sketch6.addConstraint(Sketcher.Constraint("DistanceY", -1, 1, 2, 2, Q("13 mm")))
sketch6.addConstraint(Sketcher.Constraint("DistanceX", 0, 2, -1, 1, Q("12.765918 mm")))
pocket4 = doc.addObject("PartDesign::Pocket", "Pocket003")
body.addObject(pocket4)
pocket4.Profile = sketch6
pocket4.Length = 10

# Sketch on XZ plane
sketch7 = doc.addObject("Sketcher::SketchObject", "Sketch006")
body.addObject(sketch7)
sketch7.AttachmentSupport = (doc.XZ_Plane, [""])
sketch7.MapMode = "FlatFace"
sketch7.AttachmentOffset = App.Placement(Vector(0, 0, -0.8), App.Rotation())
sketch7.addGeometry(Part.LineSegment(Vector(0.6, -34.4, 0), Vector(0.6, -29.4, 0)), False)
sketch7.addGeometry(Part.LineSegment(Vector(0.6, -29.4, 0), Vector(2.6, -29.4, 0)), False)
sketch7.addGeometry(Part.LineSegment(Vector(2.6, -29.4, 0), Vector(2.6, -34.4, 0)), False)
sketch7.addGeometry(Part.LineSegment(Vector(2.6, -34.4, 0), Vector(0.6, -34.4, 0)), False)
sketch7.addConstraint(Sketcher.Constraint("Coincident", 0, 2, 1, 1))
sketch7.addConstraint(Sketcher.Constraint("Coincident", 1, 2, 2, 1))
sketch7.addConstraint(Sketcher.Constraint("Coincident", 2, 2, 3, 1))
sketch7.addConstraint(Sketcher.Constraint("Coincident", 3, 2, 0, 1))
sketch7.addConstraint(Sketcher.Constraint("Vertical", 0))
sketch7.addConstraint(Sketcher.Constraint("Horizontal", 1))
sketch7.addConstraint(Sketcher.Constraint("Vertical", 2))
sketch7.addConstraint(Sketcher.Constraint("Horizontal", 3))
sketch7.addConstraint(Sketcher.Constraint("DistanceX", 1, 1, 1, 2, Q("2 mm")))
sketch7.addConstraint(Sketcher.Constraint("DistanceY", 0, 1, 0, 2, Q("5 mm")))
sketch7.addConstraint(Sketcher.Constraint("DistanceX", -1, 1, 0, 2, Q("0.570718 mm")))
sketch7.addConstraint(Sketcher.Constraint("DistanceY", 0, 2, -1, 1, Q("29.375055 mm")))
pad3 = doc.addObject("PartDesign::Pad", "Pad002")
body.addObject(pad3)
pad3.Profile = sketch7
pad3.Length = 2
pad3.Reversed = True
doc.recompute()

chamfer = doc.addObject("PartDesign::Chamfer", "Chamfer")
body.addObject(chamfer)
chamfer.Base = (pad3, edges_at(pad3, [
    (-18.146, 13, -5),
    (7.087, 13, 55.402),
    (31.308, 13, 33.776),
    (-23.223, 13, 39.626),
    (2.119, 13, -39.554),
    (31.308, 13, -18.926),
]))
chamfer.Size = 0.8

doc.recompute()
